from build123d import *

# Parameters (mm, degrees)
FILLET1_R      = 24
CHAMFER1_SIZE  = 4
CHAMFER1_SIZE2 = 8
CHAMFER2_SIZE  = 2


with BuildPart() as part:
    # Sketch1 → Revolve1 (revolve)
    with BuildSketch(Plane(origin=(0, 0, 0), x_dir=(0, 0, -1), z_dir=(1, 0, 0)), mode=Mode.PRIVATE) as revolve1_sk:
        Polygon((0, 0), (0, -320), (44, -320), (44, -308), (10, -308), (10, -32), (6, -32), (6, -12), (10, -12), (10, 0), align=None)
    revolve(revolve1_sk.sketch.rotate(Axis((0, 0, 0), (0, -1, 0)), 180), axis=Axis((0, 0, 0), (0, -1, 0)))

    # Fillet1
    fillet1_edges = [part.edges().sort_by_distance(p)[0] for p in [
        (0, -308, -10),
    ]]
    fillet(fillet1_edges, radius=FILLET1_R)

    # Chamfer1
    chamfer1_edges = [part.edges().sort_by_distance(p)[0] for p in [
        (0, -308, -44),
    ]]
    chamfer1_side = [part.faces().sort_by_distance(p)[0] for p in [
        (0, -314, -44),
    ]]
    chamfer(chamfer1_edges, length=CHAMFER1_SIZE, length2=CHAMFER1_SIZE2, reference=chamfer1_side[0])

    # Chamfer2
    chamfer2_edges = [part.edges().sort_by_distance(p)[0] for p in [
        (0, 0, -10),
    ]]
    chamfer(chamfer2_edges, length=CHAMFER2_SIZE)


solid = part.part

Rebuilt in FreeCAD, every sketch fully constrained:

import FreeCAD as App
import Part
import Sketcher

V = App.Vector
Q = App.Units.Quantity


def edges_at(feature, points):
    """Names of the edges that pass closest to the given points."""
    edges = feature.Shape.Edges
    near = lambda p: min(range(len(edges)), key=lambda i: edges[i].distToShape(Part.Vertex(*p))[0])
    return sorted({f"Edge{near(p) + 1}" for p in points})

doc = App.newDocument("Part")
body = doc.addObject("PartDesign::Body", "Body")

# Sketch on YZ plane
sketch1 = doc.addObject("Sketcher::SketchObject", "Sketch")
body.addObject(sketch1)
sketch1.AttachmentSupport = (doc.YZ_Plane, [""])
sketch1.MapMode = "FlatFace"
sketch1.addGeometry(Part.LineSegment(V(0, 0, 0), V(-320, 0, 0)), False)
sketch1.addGeometry(Part.LineSegment(V(-320, 0, 0), V(-320, -44, 0)), False)
sketch1.addGeometry(Part.LineSegment(V(-320, -44, 0), V(-308, -44, 0)), False)
sketch1.addGeometry(Part.LineSegment(V(-308, -44, 0), V(-308, -10, 0)), False)
sketch1.addGeometry(Part.LineSegment(V(-308, -10, 0), V(-32, -10, 0)), False)
sketch1.addGeometry(Part.LineSegment(V(-32, -10, 0), V(-32, -6, 0)), False)
sketch1.addGeometry(Part.LineSegment(V(-32, -6, 0), V(-12, -6, 0)), False)
sketch1.addGeometry(Part.LineSegment(V(-12, -6, 0), V(-12, -10, 0)), False)
sketch1.addGeometry(Part.LineSegment(V(-12, -10, 0), V(0, -10, 0)), False)
sketch1.addGeometry(Part.LineSegment(V(0, -10, 0), V(0, 0, 0)), False)
sketch1.addConstraint(Sketcher.Constraint("Coincident", 0, 2, 1, 1))
sketch1.addConstraint(Sketcher.Constraint("Coincident", 1, 2, 2, 1))
sketch1.addConstraint(Sketcher.Constraint("Coincident", 2, 2, 3, 1))
sketch1.addConstraint(Sketcher.Constraint("Coincident", 3, 2, 4, 1))
sketch1.addConstraint(Sketcher.Constraint("Coincident", 4, 2, 5, 1))
sketch1.addConstraint(Sketcher.Constraint("Coincident", 5, 2, 6, 1))
sketch1.addConstraint(Sketcher.Constraint("Coincident", 6, 2, 7, 1))
sketch1.addConstraint(Sketcher.Constraint("Coincident", 7, 2, 8, 1))
sketch1.addConstraint(Sketcher.Constraint("Coincident", 8, 2, 9, 1))
sketch1.addConstraint(Sketcher.Constraint("Coincident", 9, 2, 0, 1))
sketch1.addConstraint(Sketcher.Constraint("Horizontal", 0))
sketch1.addConstraint(Sketcher.Constraint("Vertical", 1))
sketch1.addConstraint(Sketcher.Constraint("Horizontal", 2))
sketch1.addConstraint(Sketcher.Constraint("Vertical", 3))
sketch1.addConstraint(Sketcher.Constraint("Horizontal", 4))
sketch1.addConstraint(Sketcher.Constraint("Vertical", 5))
sketch1.addConstraint(Sketcher.Constraint("Horizontal", 6))
sketch1.addConstraint(Sketcher.Constraint("Vertical", 7))
sketch1.addConstraint(Sketcher.Constraint("Horizontal", 8))
sketch1.addConstraint(Sketcher.Constraint("Vertical", 9))
sketch1.addConstraint(Sketcher.Constraint("Coincident", 9, 2, -1, 1))
sketch1.addConstraint(Sketcher.Constraint("Horizontal", 4, 2, 7, 2))
sketch1.addConstraint(Sketcher.Constraint("Equal", 2, 8))
sketch1.addConstraint(Sketcher.Constraint("DistanceX", 0, 2, 0, 1, Q("320 mm")))
sketch1.addConstraint(Sketcher.Constraint("DistanceX", 2, 1, 2, 2, Q("12 mm")))
sketch1.addConstraint(Sketcher.Constraint("DistanceX", 4, 1, 4, 2, Q("276 mm")))
sketch1.addConstraint(Sketcher.Constraint("DistanceY", 1, 2, 1, 1, Q("44 mm")))
sketch1.addConstraint(Sketcher.Constraint("DistanceY", 3, 1, 3, 2, Q("34 mm")))
sketch1.addConstraint(Sketcher.Constraint("DistanceY", 5, 1, 5, 2, Q("4 mm")))
revolution = doc.addObject("PartDesign::Revolution", "Revolution")
body.addObject(revolution)
revolution.Profile = sketch1
revolution.ReferenceAxis = (sketch1, ["H_Axis"])
revolution.Angle = 360
doc.recompute()

fillet = doc.addObject("PartDesign::Fillet", "Fillet")
body.addObject(fillet)
fillet.Base = (revolution, edges_at(revolution, [(0, -308, -10)]))
fillet.Radius = 24
doc.recompute()

chamfer = doc.addObject("PartDesign::Chamfer", "Chamfer")
body.addObject(chamfer)
chamfer.Base = (fillet, edges_at(fillet, [(0, -308, -44)]))
chamfer.ChamferType = "Two distances"
chamfer.Size = 4
chamfer.Size2 = 8
chamfer.FlipDirection = True
doc.recompute()

chamfer2 = doc.addObject("PartDesign::Chamfer", "Chamfer001")
body.addObject(chamfer2)
chamfer2.Base = (chamfer, edges_at(chamfer, [(0, 0, -10)]))
chamfer2.Size = 2

doc.recompute()
